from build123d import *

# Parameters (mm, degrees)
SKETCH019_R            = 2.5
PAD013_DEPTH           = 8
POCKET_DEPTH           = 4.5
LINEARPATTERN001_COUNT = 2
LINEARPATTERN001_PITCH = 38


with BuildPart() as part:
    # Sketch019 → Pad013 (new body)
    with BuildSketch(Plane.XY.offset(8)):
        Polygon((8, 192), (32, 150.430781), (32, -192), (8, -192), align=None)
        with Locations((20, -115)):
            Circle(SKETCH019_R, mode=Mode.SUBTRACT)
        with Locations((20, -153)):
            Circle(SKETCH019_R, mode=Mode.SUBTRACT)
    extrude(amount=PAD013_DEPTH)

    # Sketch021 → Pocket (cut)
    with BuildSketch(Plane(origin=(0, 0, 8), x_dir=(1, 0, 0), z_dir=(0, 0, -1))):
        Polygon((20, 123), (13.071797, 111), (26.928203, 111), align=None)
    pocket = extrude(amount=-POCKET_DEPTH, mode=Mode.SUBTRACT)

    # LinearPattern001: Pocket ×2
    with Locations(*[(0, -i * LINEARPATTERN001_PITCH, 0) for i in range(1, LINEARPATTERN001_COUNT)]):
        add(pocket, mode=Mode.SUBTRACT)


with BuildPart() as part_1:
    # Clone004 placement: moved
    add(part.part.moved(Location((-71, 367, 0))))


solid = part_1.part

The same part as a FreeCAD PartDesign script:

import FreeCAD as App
import Part
import Sketcher

V = App.Vector
Q = App.Units.Quantity

doc = App.newDocument("Part")
params = doc.addObject("Spreadsheet::Sheet", "Params")
for row, (alias, value) in enumerate([
    ("sketch1_diameter", "5 mm"),
    ("sketch1_width", "24 mm"),
    ("sketch1_height", "384 mm"),
    ("pad1_length", "8 mm"),
    ("pocket1_length", "4.5 mm"),
    ("linearpattern_pitch", "38 mm"),
], start=1):
    params.set(f"A{row}", alias)
    params.set(f"B{row}", "=" + value)
    params.setAlias(f"B{row}", alias)

body = doc.addObject("PartDesign::Body", "Body")

# Sketch on XY plane
sketch1 = body.newObject("Sketcher::SketchObject", "Sketch")
sketch1.AttachmentSupport = (doc.getObject("XY_Plane"), [""])
sketch1.MapMode = "FlatFace"
sketch1.AttachmentOffset = App.Placement(V(0, 0, 8), App.Rotation())
sketch1.addGeometry(Part.LineSegment(V(32, 150.4, 0), V(8, 192, 0)), False)
sketch1.addGeometry(Part.LineSegment(V(8, 192, 0), V(8, -192, 0)), False)
sketch1.addGeometry(Part.LineSegment(V(8, -192, 0), V(32, -192, 0)), False)
sketch1.addGeometry(Part.LineSegment(V(32, -192, 0), V(32, 150.4, 0)), False)
sketch1.addGeometry(Part.Circle(V(20, -153, 0), V(0, 0, 1), 2.5), False)
sketch1.addGeometry(Part.Circle(V(20, -115, 0), V(0, 0, 1), 2.5), False)
sketch1.addConstraint(Sketcher.Constraint("Coincident", 0, 2, 1, 1))
sketch1.addConstraint(Sketcher.Constraint("Coincident", 1, 2, 2, 1))
sketch1.addConstraint(Sketcher.Constraint("Coincident", 2, 2, 3, 1))
sketch1.addConstraint(Sketcher.Constraint("Coincident", 3, 2, 0, 1))
sketch1.addConstraint(Sketcher.Constraint("Vertical", 1))
sketch1.addConstraint(Sketcher.Constraint("Horizontal", 2))
sketch1.addConstraint(Sketcher.Constraint("Vertical", 3))
sketch1.addConstraint(Sketcher.Constraint("Equal", 4, 5))
sketch1.addConstraint(Sketcher.Constraint("Vertical", 4, 3, 5, 3))
sketch1.addConstraint(Sketcher.Constraint("Diameter", 4, Q("5 mm")))
sketch1.addConstraint(Sketcher.Constraint("DistanceX", 2, 1, 2, 2, Q("24 mm")))
sketch1.addConstraint(Sketcher.Constraint("DistanceY", 1, 2, 1, 1, Q("384 mm")))
sketch1.addConstraint(Sketcher.Constraint("Angle", 0, Q("120 deg")))
sketch1.addConstraint(Sketcher.Constraint("DistanceX", -1, 1, 4, 3, Q("20 mm")))
sketch1.addConstraint(Sketcher.Constraint("DistanceY", 4, 3, -1, 1, Q("153 mm")))
sketch1.addConstraint(Sketcher.Constraint("DistanceY", 5, 3, -1, 1, Q("115 mm")))
sketch1.addConstraint(Sketcher.Constraint("DistanceX", -1, 1, 0, 2, Q("8 mm")))
sketch1.addConstraint(Sketcher.Constraint("DistanceY", -1, 1, 0, 2, Q("192 mm")))
sketch1.setExpression("Constraints[9]", "Params.sketch1_diameter")
sketch1.setExpression("Constraints[10]", "Params.sketch1_width")
sketch1.setExpression("Constraints[11]", "Params.sketch1_height")
pad1 = body.newObject("PartDesign::Pad", "Pad")
pad1.Profile = sketch1
pad1.setExpression("Length", "Params.pad1_length")

# Sketch on XY plane
sketch2 = body.newObject("Sketcher::SketchObject", "Sketch001")
sketch2.AttachmentSupport = (doc.getObject("XY_Plane"), [""])
sketch2.MapMode = "FlatFace"
sketch2.AttachmentOffset = App.Placement(V(0, 0, 8), App.Rotation())
sketch2.addGeometry(Part.LineSegment(V(20, -123, 0), V(13, -111, 0)), False)
sketch2.addGeometry(Part.LineSegment(V(13, -111, 0), V(27, -111, 0)), False)
sketch2.addGeometry(Part.LineSegment(V(27, -111, 0), V(20, -123, 0)), False)
sketch2.addConstraint(Sketcher.Constraint("Coincident", 0, 2, 1, 1))
sketch2.addConstraint(Sketcher.Constraint("Coincident", 1, 2, 2, 1))
sketch2.addConstraint(Sketcher.Constraint("Coincident", 2, 2, 0, 1))
sketch2.addConstraint(Sketcher.Constraint("Horizontal", 1))
sketch2.addConstraint(Sketcher.Constraint("Equal", 0, 2))
sketch2.addConstraint(Sketcher.Constraint("Angle", 0, Q("119.999999 deg")))
sketch2.addConstraint(Sketcher.Constraint("DistanceY", 0, 2, -1, 1, Q("111 mm")))
sketch2.addConstraint(Sketcher.Constraint("DistanceX", -1, 1, 2, 2, Q("20 mm")))
sketch2.addConstraint(Sketcher.Constraint("DistanceY", 2, 2, -1, 1, Q("123 mm")))
pocket1 = body.newObject("PartDesign::Pocket", "Pocket")
pocket1.Profile = sketch2
pocket1.setExpression("Length", "Params.pocket1_length")
pocket1.Reversed = True
doc.recompute()

linearpattern = body.newObject("PartDesign::LinearPattern", "LinearPattern")
linearpattern.Originals = [pocket1]
linearpattern.Direction = (doc.getObject("Y_Axis"), [""])
linearpattern.Mode = "offset"
linearpattern.setExpression("Offset", "Params.linearpattern_pitch")
linearpattern.Occurrences = 2
linearpattern.Reversed = True
body.Tip = linearpattern
body2 = doc.addObject("PartDesign::Body", "Body001")
doc.recompute()

body.Placement = App.Placement(V(-71, 367, 0), App.Rotation(V(0, 0, 1), 0))
boolean = body2.newObject("PartDesign::Boolean", "Boolean")
boolean.Type = "Fuse"
boolean.addObjects([body])

doc.recompute()
